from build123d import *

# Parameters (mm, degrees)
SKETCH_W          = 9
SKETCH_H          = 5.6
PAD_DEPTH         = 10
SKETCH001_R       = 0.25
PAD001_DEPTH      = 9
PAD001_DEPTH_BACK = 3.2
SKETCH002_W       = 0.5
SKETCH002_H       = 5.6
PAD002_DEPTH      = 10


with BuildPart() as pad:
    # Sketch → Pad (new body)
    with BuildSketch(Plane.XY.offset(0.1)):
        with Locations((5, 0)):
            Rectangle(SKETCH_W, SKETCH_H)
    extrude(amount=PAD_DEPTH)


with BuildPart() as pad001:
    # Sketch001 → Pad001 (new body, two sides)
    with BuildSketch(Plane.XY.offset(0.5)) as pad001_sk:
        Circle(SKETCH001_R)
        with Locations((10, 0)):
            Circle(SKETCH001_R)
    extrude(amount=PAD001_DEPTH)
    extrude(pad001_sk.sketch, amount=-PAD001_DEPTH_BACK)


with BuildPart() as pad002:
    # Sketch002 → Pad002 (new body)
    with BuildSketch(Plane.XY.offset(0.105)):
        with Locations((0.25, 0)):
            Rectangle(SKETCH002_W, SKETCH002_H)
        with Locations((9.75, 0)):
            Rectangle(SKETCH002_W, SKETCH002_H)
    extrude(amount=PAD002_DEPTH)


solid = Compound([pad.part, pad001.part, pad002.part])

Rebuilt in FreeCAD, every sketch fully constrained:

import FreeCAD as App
import Part
import Sketcher
from FreeCAD import Vector

doc = App.newDocument("Part")
params = doc.addObject("Spreadsheet::Sheet", "Params")
for row, (alias, value) in enumerate([
    ("sketch1_width", "9 mm"),
    ("sketch1_height", "5.6 mm"),
    ("pad1_length", "10 mm"),
    ("sketch2_diameter", "0.5 mm"),
    ("pad2_length", "9 mm"),
    ("pad2_length2", "3.2 mm"),
    ("sketch3_width", "0.5 mm"),
    ("sketch3_height", "5.6 mm"),
    ("pad3_length", "10 mm"),
], start=1):
    params.set(f"A{row}", alias)
    params.set(f"B{row}", "=" + value)
    params.setAlias(f"B{row}", alias)

body = doc.addObject("PartDesign::Body", "Body")

# Sketch on XY plane
sketch1 = body.newObject("Sketcher::SketchObject", "Sketch")
sketch1.AttachmentSupport = (doc.getObject("XY_Plane"), [""])
sketch1.MapMode = "FlatFace"
sketch1.AttachmentOffset = App.Placement(Vector(0, 0, 0.1), App.Rotation())
sketch1.addGeometry([
    Part.LineSegment(Vector(0, 3, 0), Vector(0, -3, 0)),
    Part.LineSegment(Vector(0, -3, 0), Vector(10, -3, 0)),
    Part.LineSegment(Vector(10, -3, 0), Vector(10, 3, 0)),
    Part.LineSegment(Vector(10, 3, 0), Vector(0, 3, 0)),
], False)
sketch1.addConstraint([
    Sketcher.Constraint("Coincident", 0, 2, 1, 1),
    Sketcher.Constraint("Coincident", 1, 2, 2, 1),
    Sketcher.Constraint("Coincident", 2, 2, 3, 1),
    Sketcher.Constraint("Coincident", 3, 2, 0, 1),
    Sketcher.Constraint("Vertical", 0),
    Sketcher.Constraint("Horizontal", 1),
    Sketcher.Constraint("Vertical", 2),
    Sketcher.Constraint("Horizontal", 3),
    Sketcher.Constraint("DistanceX", 1, 1, 1, 2, 9.0),
    Sketcher.Constraint("DistanceY", 0, 2, 0, 1, 5.6),
    Sketcher.Constraint("DistanceX", -1, 1, 0, 2, 0.5),
    Sketcher.Constraint("DistanceY", 0, 2, -1, 1, 2.8),
])
sketch1.setExpression("Constraints[8]", "Params.sketch1_width")
sketch1.setExpression("Constraints[9]", "Params.sketch1_height")
pad1 = body.newObject("PartDesign::Pad", "Pad")
pad1.Profile = sketch1
pad1.setExpression("Length", "Params.pad1_length")
body2 = doc.addObject("PartDesign::Body", "Body001")
body2.AllowCompound = True

# Sketch on XY plane
sketch2 = body2.newObject("Sketcher::SketchObject", "Sketch001")
sketch2.AttachmentSupport = (doc.getObject("XY_Plane001"), [""])
sketch2.MapMode = "FlatFace"
sketch2.AttachmentOffset = App.Placement(Vector(0, 0, 0.5), App.Rotation())
sketch2.addGeometry([
    Part.Circle(Vector(0, 0, 0), Vector(0, 0, 1), 0.25),
    Part.Circle(Vector(10, 0, 0), Vector(0, 0, 1), 0.25),
], False)
sketch2.addConstraint([
    Sketcher.Constraint("Coincident", 0, 3, -1, 1),
    Sketcher.Constraint("Equal", 0, 1),
    Sketcher.Constraint("PointOnObject", 1, 3, -1),
    Sketcher.Constraint("Diameter", 0, 0.5),
    Sketcher.Constraint("DistanceX", -1, 1, 1, 3, 10.0),
])
sketch2.setExpression("Constraints[3]", "Params.sketch2_diameter")
pad2 = body2.newObject("PartDesign::Pad", "Pad001")
pad2.Profile = sketch2
pad2.Type = "TwoLengths"
pad2.setExpression("Length", "Params.pad2_length")
pad2.setExpression("Length2", "Params.pad2_length2")
body3 = doc.addObject("PartDesign::Body", "Body002")
body3.AllowCompound = True

# Sketch on XY plane
sketch3 = body3.newObject("Sketcher::SketchObject", "Sketch002")
sketch3.AttachmentSupport = (doc.getObject("XY_Plane002"), [""])
sketch3.MapMode = "FlatFace"
sketch3.AttachmentOffset = App.Placement(Vector(0, 0, 0.105), App.Rotation())
sketch3.addGeometry([
    Part.LineSegment(Vector(0, 2.8, 0), Vector(0, -2.8, 0)),  # 0
    Part.LineSegment(Vector(0, -2.8, 0), Vector(0.5, -2.8, 0)),  # 1
    Part.LineSegment(Vector(0.5, -2.8, 0), Vector(0.5, 2.8, 0)),  # 2
    Part.LineSegment(Vector(0.5, 2.8, 0), Vector(0, 2.8, 0)),  # 3
    Part.LineSegment(Vector(9.5, 2.8, 0), Vector(9.5, -2.8, 0)),  # 4
    Part.LineSegment(Vector(9.5, -2.8, 0), Vector(10, -2.8, 0)),  # 5
    Part.LineSegment(Vector(10, -2.8, 0), Vector(10, 2.8, 0)),  # 6
    Part.LineSegment(Vector(10, 2.8, 0), Vector(9.5, 2.8, 0)),  # 7
], False)
sketch3.addConstraint([
    Sketcher.Constraint("Coincident", 0, 2, 1, 1),
    Sketcher.Constraint("Coincident", 1, 2, 2, 1),
    Sketcher.Constraint("Coincident", 2, 2, 3, 1),
    Sketcher.Constraint("Coincident", 3, 2, 0, 1),
    Sketcher.Constraint("Coincident", 4, 2, 5, 1),
    Sketcher.Constraint("Coincident", 5, 2, 6, 1),
    Sketcher.Constraint("Coincident", 6, 2, 7, 1),
    Sketcher.Constraint("Coincident", 7, 2, 4, 1),
    Sketcher.Constraint("Vertical", 0),
    Sketcher.Constraint("Horizontal", 1),
    Sketcher.Constraint("Vertical", 2),
    Sketcher.Constraint("Horizontal", 3),
    Sketcher.Constraint("Vertical", 4),
    Sketcher.Constraint("Horizontal", 5),
    Sketcher.Constraint("Vertical", 6),
    Sketcher.Constraint("Horizontal", 7),
    Sketcher.Constraint("Symmetric", 0, 2, 3, 2, -1, 1),
    Sketcher.Constraint("Horizontal", 1, 2, 4, 2),
    Sketcher.Constraint("Horizontal", 3, 2, 6, 2),
    Sketcher.Constraint("Equal", 3, 5),
    Sketcher.Constraint("DistanceX", 1, 1, 1, 2, 0.5),
    Sketcher.Constraint("DistanceY", 0, 2, 0, 1, 5.6),
    Sketcher.Constraint("DistanceX", -1, 1, 5, 2, 10.0),
])
sketch3.setExpression("Constraints[20]", "Params.sketch3_width")
sketch3.setExpression("Constraints[21]", "Params.sketch3_height")
pad3 = body3.newObject("PartDesign::Pad", "Pad002")
pad3.Profile = sketch3
pad3.setExpression("Length", "Params.pad3_length")

doc.recompute()
